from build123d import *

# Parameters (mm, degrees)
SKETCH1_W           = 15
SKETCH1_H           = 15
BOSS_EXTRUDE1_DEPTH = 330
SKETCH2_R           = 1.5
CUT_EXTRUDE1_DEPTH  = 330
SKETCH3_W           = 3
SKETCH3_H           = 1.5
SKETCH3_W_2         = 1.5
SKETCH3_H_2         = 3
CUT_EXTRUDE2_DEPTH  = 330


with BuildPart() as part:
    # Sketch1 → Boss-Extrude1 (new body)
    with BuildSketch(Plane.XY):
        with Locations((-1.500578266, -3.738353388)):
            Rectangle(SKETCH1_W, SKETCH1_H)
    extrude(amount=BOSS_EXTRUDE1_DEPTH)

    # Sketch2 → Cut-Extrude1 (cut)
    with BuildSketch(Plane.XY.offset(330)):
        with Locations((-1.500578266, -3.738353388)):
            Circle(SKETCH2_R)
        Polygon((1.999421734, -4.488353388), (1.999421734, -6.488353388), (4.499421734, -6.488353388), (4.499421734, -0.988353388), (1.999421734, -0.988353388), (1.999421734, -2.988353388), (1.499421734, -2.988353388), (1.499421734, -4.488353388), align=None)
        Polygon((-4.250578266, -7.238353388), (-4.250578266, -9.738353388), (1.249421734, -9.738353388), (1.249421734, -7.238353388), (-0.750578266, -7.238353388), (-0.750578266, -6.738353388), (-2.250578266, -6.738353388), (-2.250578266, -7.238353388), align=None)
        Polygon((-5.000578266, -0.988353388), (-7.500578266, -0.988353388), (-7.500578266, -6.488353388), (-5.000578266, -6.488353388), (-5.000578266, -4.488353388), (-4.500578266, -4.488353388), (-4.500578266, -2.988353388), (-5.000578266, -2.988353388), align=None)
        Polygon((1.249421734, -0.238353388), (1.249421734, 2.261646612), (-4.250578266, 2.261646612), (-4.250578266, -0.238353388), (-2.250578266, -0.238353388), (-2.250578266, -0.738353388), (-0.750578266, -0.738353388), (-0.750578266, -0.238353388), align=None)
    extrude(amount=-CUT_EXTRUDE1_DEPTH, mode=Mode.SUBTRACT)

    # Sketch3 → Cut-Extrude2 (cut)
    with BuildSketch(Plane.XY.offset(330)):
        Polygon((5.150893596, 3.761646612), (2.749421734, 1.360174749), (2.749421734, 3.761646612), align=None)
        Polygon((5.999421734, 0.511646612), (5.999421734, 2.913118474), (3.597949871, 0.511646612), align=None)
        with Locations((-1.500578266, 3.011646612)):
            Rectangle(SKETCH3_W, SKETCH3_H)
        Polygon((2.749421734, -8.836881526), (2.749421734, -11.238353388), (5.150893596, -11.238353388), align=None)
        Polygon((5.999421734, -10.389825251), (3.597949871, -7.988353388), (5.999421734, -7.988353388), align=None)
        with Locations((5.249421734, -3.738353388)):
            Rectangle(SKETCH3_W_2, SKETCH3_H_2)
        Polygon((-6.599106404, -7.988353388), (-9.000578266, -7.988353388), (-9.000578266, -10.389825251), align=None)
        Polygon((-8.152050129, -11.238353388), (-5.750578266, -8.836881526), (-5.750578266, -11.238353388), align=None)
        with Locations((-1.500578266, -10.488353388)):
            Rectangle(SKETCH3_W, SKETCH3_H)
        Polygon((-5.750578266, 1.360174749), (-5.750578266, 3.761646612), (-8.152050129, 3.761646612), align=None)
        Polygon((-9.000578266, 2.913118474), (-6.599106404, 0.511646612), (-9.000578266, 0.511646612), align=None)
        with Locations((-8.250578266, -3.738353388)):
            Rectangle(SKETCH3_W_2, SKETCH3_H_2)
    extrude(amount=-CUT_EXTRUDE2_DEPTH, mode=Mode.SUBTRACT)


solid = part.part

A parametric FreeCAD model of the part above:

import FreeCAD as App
import Part
import Sketcher
from FreeCAD import Vector
Q = App.Units.Quantity

doc = App.newDocument("Part")
body = doc.addObject("PartDesign::Body", "Body")

# Sketch on XY plane
sketch1 = body.newObject("Sketcher::SketchObject", "Sketch")
sketch1.AttachmentSupport = (doc.getObject("XY_Plane"), [""])
sketch1.MapMode = "FlatFace"
sketch1.addGeometry([
    Part.LineSegment(Vector(-9, 4, 0), Vector(-9, -11, 0)),
    Part.LineSegment(Vector(-9, -11, 0), Vector(6, -11, 0)),
    Part.LineSegment(Vector(6, -11, 0), Vector(6, 4, 0)),
    Part.LineSegment(Vector(6, 4, 0), Vector(-9, 4, 0)),
], False)
sketch1.addConstraint([
    Sketcher.Constraint("Coincident", 0, 2, 1, 1),
    Sketcher.Constraint("Coincident", 1, 2, 2, 1),
    Sketcher.Constraint("Coincident", 2, 2, 3, 1),
    Sketcher.Constraint("Coincident", 3, 2, 0, 1),
    Sketcher.Constraint("Vertical", 0),
    Sketcher.Constraint("Horizontal", 1),
    Sketcher.Constraint("Vertical", 2),
    Sketcher.Constraint("Horizontal", 3),
    Sketcher.Constraint("Equal", 3, 0),
    Sketcher.Constraint("DistanceX", 1, 1, 1, 2, Q("15 mm")),
    Sketcher.Constraint("DistanceX", 0, 2, -1, 1, Q("9.000578 mm")),
    Sketcher.Constraint("DistanceY", 0, 2, -1, 1, Q("11.238353 mm")),
])
pad1 = body.newObject("PartDesign::Pad", "Pad")
pad1.Profile = sketch1
pad1.Length = 330

# Sketch on XY plane
sketch2 = body.newObject("Sketcher::SketchObject", "Sketch001")
sketch2.AttachmentSupport = (doc.getObject("XY_Plane"), [""])
sketch2.MapMode = "FlatFace"
sketch2.AttachmentOffset = App.Placement(Vector(0, 0, 330), App.Rotation())
sketch2.addGeometry([
    Part.Circle(Vector(-1.5, -3.7, 0), Vector(0, 0, 1), 1.5),  # 0
    Part.LineSegment(Vector(2, -4.5, 0), Vector(2, -6.5, 0)),  # 1
    Part.LineSegment(Vector(2, -6.5, 0), Vector(4.5, -6.5, 0)),  # 2
    Part.LineSegment(Vector(4.5, -6.5, 0), Vector(4.5, -1, 0)),  # 3
    Part.LineSegment(Vector(4.5, -1, 0), Vector(2, -1, 0)),  # 4
    Part.LineSegment(Vector(2, -1, 0), Vector(2, -3, 0)),  # 5
    Part.LineSegment(Vector(2, -3, 0), Vector(1.5, -3, 0)),  # 6
    Part.LineSegment(Vector(1.5, -3, 0), Vector(1.5, -4.5, 0)),  # 7
    Part.LineSegment(Vector(1.5, -4.5, 0), Vector(2, -4.5, 0)),  # 8
    Part.LineSegment(Vector(-4.3, -7.2, 0), Vector(-4.3, -9.7, 0)),  # 9
    Part.LineSegment(Vector(-4.3, -9.7, 0), Vector(1.2, -9.7, 0)),  # 10
    Part.LineSegment(Vector(1.2, -9.7, 0), Vector(1.2, -7.2, 0)),  # 11
    Part.LineSegment(Vector(1.2, -7.2, 0), Vector(-0.8, -7.2, 0)),  # 12
    Part.LineSegment(Vector(-0.8, -7.2, 0), Vector(-0.8, -6.7, 0)),  # 13
    Part.LineSegment(Vector(-0.8, -6.7, 0), Vector(-2.3, -6.7, 0)),  # 14
    Part.LineSegment(Vector(-2.3, -6.7, 0), Vector(-2.3, -7.2, 0)),  # 15
    Part.LineSegment(Vector(-2.3, -7.2, 0), Vector(-4.3, -7.2, 0)),  # 16
    Part.LineSegment(Vector(-5, -1, 0), Vector(-7.5, -1, 0)),  # 17
    Part.LineSegment(Vector(-7.5, -1, 0), Vector(-7.5, -6.5, 0)),  # 18
    Part.LineSegment(Vector(-7.5, -6.5, 0), Vector(-5, -6.5, 0)),  # 19
    Part.LineSegment(Vector(-5, -6.5, 0), Vector(-5, -4.5, 0)),  # 20
    Part.LineSegment(Vector(-5, -4.5, 0), Vector(-4.5, -4.5, 0)),  # 21
    Part.LineSegment(Vector(-4.5, -4.5, 0), Vector(-4.5, -3, 0)),  # 22
    Part.LineSegment(Vector(-4.5, -3, 0), Vector(-5, -3, 0)),  # 23
    Part.LineSegment(Vector(-5, -3, 0), Vector(-5, -1, 0)),  # 24
    Part.LineSegment(Vector(1.2, -0.2, 0), Vector(1.2, 2.3, 0)),  # 25
    Part.LineSegment(Vector(1.2, 2.3, 0), Vector(-4.3, 2.3, 0)),  # 26
    Part.LineSegment(Vector(-4.3, 2.3, 0), Vector(-4.3, -0.2, 0)),  # 27
    Part.LineSegment(Vector(-4.3, -0.2, 0), Vector(-2.3, -0.2, 0)),  # 28
    Part.LineSegment(Vector(-2.3, -0.2, 0), Vector(-2.3, -0.7, 0)),  # 29
    Part.LineSegment(Vector(-2.3, -0.7, 0), Vector(-0.8, -0.7, 0)),  # 30
    Part.LineSegment(Vector(-0.8, -0.7, 0), Vector(-0.8, -0.2, 0)),  # 31
    Part.LineSegment(Vector(-0.8, -0.2, 0), Vector(1.2, -0.2, 0)),  # 32
], False)
sketch2.addConstraint([
    Sketcher.Constraint("Coincident", 1, 2, 2, 1),
    Sketcher.Constraint("Coincident", 2, 2, 3, 1),
    Sketcher.Constraint("Coincident", 3, 2, 4, 1),
    Sketcher.Constraint("Coincident", 4, 2, 5, 1),
    Sketcher.Constraint("Coincident", 5, 2, 6, 1),
    Sketcher.Constraint("Coincident", 6, 2, 7, 1),
    Sketcher.Constraint("Coincident", 7, 2, 8, 1),
    Sketcher.Constraint("Coincident", 8, 2, 1, 1),
    Sketcher.Constraint("Coincident", 9, 2, 10, 1),
    Sketcher.Constraint("Coincident", 10, 2, 11, 1),
    Sketcher.Constraint("Coincident", 11, 2, 12, 1),
    Sketcher.Constraint("Coincident", 12, 2, 13, 1),
    Sketcher.Constraint("Coincident", 13, 2, 14, 1),
    Sketcher.Constraint("Coincident", 14, 2, 15, 1),
    Sketcher.Constraint("Coincident", 15, 2, 16, 1),
    Sketcher.Constraint("Coincident", 16, 2, 9, 1),
    Sketcher.Constraint("Coincident", 17, 2, 18, 1),
    Sketcher.Constraint("Coincident", 18, 2, 19, 1),
    Sketcher.Constraint("Coincident", 19, 2, 20, 1),
    Sketcher.Constraint("Coincident", 20, 2, 21, 1),
    Sketcher.Constraint("Coincident", 21, 2, 22, 1),
    Sketcher.Constraint("Coincident", 22, 2, 23, 1),
    Sketcher.Constraint("Coincident", 23, 2, 24, 1),
    Sketcher.Constraint("Coincident", 24, 2, 17, 1),
    Sketcher.Constraint("Coincident", 25, 2, 26, 1),
    Sketcher.Constraint("Coincident", 26, 2, 27, 1),
    Sketcher.Constraint("Coincident", 27, 2, 28, 1),
    Sketcher.Constraint("Coincident", 28, 2, 29, 1),
    Sketcher.Constraint("Coincident", 29, 2, 30, 1),
    Sketcher.Constraint("Coincident", 30, 2, 31, 1),
    Sketcher.Constraint("Coincident", 31, 2, 32, 1),
    Sketcher.Constraint("Coincident", 32, 2, 25, 1),
    Sketcher.Constraint("Vertical", 1),
    Sketcher.Constraint("Horizontal", 2),
    Sketcher.Constraint("Vertical", 3),
    Sketcher.Constraint("Horizontal", 4),
    Sketcher.Constraint("Vertical", 5),
    Sketcher.Constraint("Horizontal", 6),
    Sketcher.Constraint("Vertical", 7),
    Sketcher.Constraint("Horizontal", 8),
    Sketcher.Constraint("Vertical", 9),
    Sketcher.Constraint("Horizontal", 10),
    Sketcher.Constraint("Vertical", 11),
    Sketcher.Constraint("Horizontal", 12),
    Sketcher.Constraint("Vertical", 13),
    Sketcher.Constraint("Horizontal", 14),
    Sketcher.Constraint("Vertical", 15),
    Sketcher.Constraint("Horizontal", 16),
    Sketcher.Constraint("Horizontal", 17),
    Sketcher.Constraint("Vertical", 18),
    Sketcher.Constraint("Horizontal", 19),
    Sketcher.Constraint("Vertical", 20),
    Sketcher.Constraint("Horizontal", 21),
    Sketcher.Constraint("Vertical", 22),
    Sketcher.Constraint("Horizontal", 23),
    Sketcher.Constraint("Vertical", 24),
    Sketcher.Constraint("Vertical", 25),
    Sketcher.Constraint("Horizontal", 26),
    Sketcher.Constraint("Vertical", 27),
    Sketcher.Constraint("Horizontal", 28),
    Sketcher.Constraint("Vertical", 29),
    Sketcher.Constraint("Horizontal", 30),
    Sketcher.Constraint("Vertical", 31),
    Sketcher.Constraint("Horizontal", 32),
    Sketcher.Constraint("Horizontal", 12, 2, 15, 2),
    Sketcher.Constraint("Horizontal", 4, 2, 17, 2),
    Sketcher.Constraint("Horizontal", 2, 2, 18, 2),
    Sketcher.Constraint("Horizontal", 8, 2, 20, 2),
    Sketcher.Constraint("Horizontal", 6, 2, 22, 2),
    Sketcher.Constraint("Horizontal", 28, 2, 31, 2),
    Sketcher.Constraint("Vertical", 1, 2, 4, 2),
    Sketcher.Constraint("Vertical", 20, 2, 23, 2),
    Sketcher.Constraint("Vertical", 11, 2, 25, 2),
    Sketcher.Constraint("Vertical", 16, 2, 26, 2),
    Sketcher.Constraint("Vertical", 15, 2, 28, 2),
    Sketcher.Constraint("Vertical", 13, 2, 30, 2),
    Sketcher.Constraint("Equal", 12, 16),
    Sketcher.Constraint("Equal", 4, 17),
    Sketcher.Constraint("Equal", 8, 21),
    Sketcher.Constraint("Equal", 32, 1),
    Sketcher.Constraint("Equal", 26, 3),
    Sketcher.Constraint("Equal", 1, 5),
    Sketcher.Constraint("Equal", 19, 9),
    Sketcher.Constraint("Equal", 23, 13),
    Sketcher.Constraint("Equal", 11, 25),
    Sketcher.Constraint("Equal", 15, 29),
    Sketcher.Constraint("Diameter", 0, Q("3 mm")),
    Sketcher.Constraint("DistanceX", 12, 2, 12, 1, Q("2 mm")),
    Sketcher.Constraint("DistanceX", 2, 1, 2, 2, Q("2.5 mm")),
    Sketcher.Constraint("DistanceX", 6, 2, 6, 1, Q("0.5 mm")),
    Sketcher.Constraint("DistanceX", 10, 1, 10, 2, Q("5.5 mm")),
    Sketcher.Constraint("DistanceX", 0, 3, 2, 2, Q("6 mm")),
    Sketcher.Constraint("DistanceY", 9, 2, 0, 3, Q("6 mm")),
    Sketcher.Constraint("DistanceX", 17, 2, 0, 3, Q("6 mm")),
    Sketcher.Constraint("DistanceY", 0, 3, 25, 2, Q("6 mm")),
    Sketcher.Constraint("DistanceY", 1, 2, 0, 3, Q("2.75 mm")),
    Sketcher.Constraint("DistanceX", 9, 2, 0, 3, Q("2.75 mm")),
    Sketcher.Constraint("DistanceX", 0, 3, -1, 1, Q("1.500578 mm")),
    Sketcher.Constraint("DistanceY", 0, 3, -1, 1, Q("3.738353 mm")),
])
pocket1 = body.newObject("PartDesign::Pocket", "Pocket")
pocket1.Profile = sketch2
pocket1.Length = 330

# Sketch on XY plane
sketch3 = body.newObject("Sketcher::SketchObject", "Sketch002")
sketch3.AttachmentSupport = (doc.getObject("XY_Plane"), [""])
sketch3.MapMode = "FlatFace"
sketch3.AttachmentOffset = App.Placement(Vector(0, 0, 330), App.Rotation())
sketch3.addGeometry([
    Part.LineSegment(Vector(2.7, 1.4, 0), Vector(5.2, 3.8, 0)),  # 0
    Part.LineSegment(Vector(5.2, 3.8, 0), Vector(2.7, 3.8, 0)),  # 1
    Part.LineSegment(Vector(2.7, 3.8, 0), Vector(2.7, 1.4, 0)),  # 2
    Part.LineSegment(Vector(6, 0.5, 0), Vector(6, 2.9, 0)),  # 3
    Part.LineSegment(Vector(6, 2.9, 0), Vector(3.6, 0.5, 0)),  # 4
    Part.LineSegment(Vector(3.6, 0.5, 0), Vector(6, 0.5, 0)),  # 5
    Part.LineSegment(Vector(-3, 3.8, 0), Vector(-3, 2.3, 0)),  # 6
    Part.LineSegment(Vector(-3, 2.3, 0), Vector(0, 2.3, 0)),  # 7
    Part.LineSegment(Vector(0, 2.3, 0), Vector(0, 3.8, 0)),  # 8
    Part.LineSegment(Vector(0, 3.8, 0), Vector(-3, 3.8, 0)),  # 9
    Part.LineSegment(Vector(2.7, -8.8, 0), Vector(2.7, -11.2, 0)),  # 10
    Part.LineSegment(Vector(2.7, -11.2, 0), Vector(5.2, -11.2, 0)),  # 11
    Part.LineSegment(Vector(5.2, -11.2, 0), Vector(2.7, -8.8, 0)),  # 12
    Part.LineSegment(Vector(3.6, -8, 0), Vector(6, -10.4, 0)),  # 13
    Part.LineSegment(Vector(6, -10.4, 0), Vector(6, -8, 0)),  # 14
    Part.LineSegment(Vector(6, -8, 0), Vector(3.6, -8, 0)),  # 15
    Part.LineSegment(Vector(4.5, -2.2, 0), Vector(4.5, -5.2, 0)),  # 16
    Part.LineSegment(Vector(4.5, -5.2, 0), Vector(6, -5.2, 0)),  # 17
    Part.LineSegment(Vector(6, -5.2, 0), Vector(6, -2.2, 0)),  # 18
    Part.LineSegment(Vector(6, -2.2, 0), Vector(4.5, -2.2, 0)),  # 19
    Part.LineSegment(Vector(-6.6, -8, 0), Vector(-9, -8, 0)),  # 20
    Part.LineSegment(Vector(-9, -8, 0), Vector(-9, -10.4, 0)),  # 21
    Part.LineSegment(Vector(-9, -10.4, 0), Vector(-6.6, -8, 0)),  # 22
    Part.LineSegment(Vector(-5.8, -8.8, 0), Vector(-8.2, -11.2, 0)),  # 23
    Part.LineSegment(Vector(-8.2, -11.2, 0), Vector(-5.8, -11.2, 0)),  # 24
    Part.LineSegment(Vector(-5.8, -11.2, 0), Vector(-5.8, -8.8, 0)),  # 25
    Part.LineSegment(Vector(-3, -9.7, 0), Vector(-3, -11.2, 0)),  # 26
    Part.LineSegment(Vector(-3, -11.2, 0), Vector(0, -11.2, 0)),  # 27
    Part.LineSegment(Vector(0, -11.2, 0), Vector(0, -9.7, 0)),  # 28
    Part.LineSegment(Vector(0, -9.7, 0), Vector(-3, -9.7, 0)),  # 29
    Part.LineSegment(Vector(-5.8, 1.4, 0), Vector(-5.8, 3.8, 0)),  # 30
    Part.LineSegment(Vector(-5.8, 3.8, 0), Vector(-8.2, 3.8, 0)),  # 31
    Part.LineSegment(Vector(-8.2, 3.8, 0), Vector(-5.8, 1.4, 0)),  # 32
    Part.LineSegment(Vector(-6.6, 0.5, 0), Vector(-9, 2.9, 0)),  # 33
    Part.LineSegment(Vector(-9, 2.9, 0), Vector(-9, 0.5, 0)),  # 34
    Part.LineSegment(Vector(-9, 0.5, 0), Vector(-6.6, 0.5, 0)),  # 35
    Part.LineSegment(Vector(-9, -2.2, 0), Vector(-9, -5.2, 0)),  # 36
    Part.LineSegment(Vector(-9, -5.2, 0), Vector(-7.5, -5.2, 0)),  # 37
    Part.LineSegment(Vector(-7.5, -5.2, 0), Vector(-7.5, -2.2, 0)),  # 38
    Part.LineSegment(Vector(-7.5, -2.2, 0), Vector(-9, -2.2, 0)),  # 39
], False)
sketch3.addConstraint([
    Sketcher.Constraint("Coincident", 0, 2, 1, 1),
    Sketcher.Constraint("Coincident", 1, 2, 2, 1),
    Sketcher.Constraint("Coincident", 2, 2, 0, 1),
    Sketcher.Constraint("Coincident", 3, 2, 4, 1),
    Sketcher.Constraint("Coincident", 4, 2, 5, 1),
    Sketcher.Constraint("Coincident", 5, 2, 3, 1),
    Sketcher.Constraint("Coincident", 6, 2, 7, 1),
    Sketcher.Constraint("Coincident", 7, 2, 8, 1),
    Sketcher.Constraint("Coincident", 8, 2, 9, 1),
    Sketcher.Constraint("Coincident", 9, 2, 6, 1),
    Sketcher.Constraint("Coincident", 10, 2, 11, 1),
    Sketcher.Constraint("Coincident", 11, 2, 12, 1),
    Sketcher.Constraint("Coincident", 12, 2, 10, 1),
    Sketcher.Constraint("Coincident", 13, 2, 14, 1),
    Sketcher.Constraint("Coincident", 14, 2, 15, 1),
    Sketcher.Constraint("Coincident", 15, 2, 13, 1),
    Sketcher.Constraint("Coincident", 16, 2, 17, 1),
    Sketcher.Constraint("Coincident", 17, 2, 18, 1),
    Sketcher.Constraint("Coincident", 18, 2, 19, 1),
    Sketcher.Constraint("Coincident", 19, 2, 16, 1),
    Sketcher.Constraint("Coincident", 20, 2, 21, 1),
    Sketcher.Constraint("Coincident", 21, 2, 22, 1),
    Sketcher.Constraint("Coincident", 22, 2, 20, 1),
    Sketcher.Constraint("Coincident", 23, 2, 24, 1),
    Sketcher.Constraint("Coincident", 24, 2, 25, 1),
    Sketcher.Constraint("Coincident", 25, 2, 23, 1),
    Sketcher.Constraint("Coincident", 26, 2, 27, 1),
    Sketcher.Constraint("Coincident", 27, 2, 28, 1),
    Sketcher.Constraint("Coincident", 28, 2, 29, 1),
    Sketcher.Constraint("Coincident", 29, 2, 26, 1),
    Sketcher.Constraint("Coincident", 30, 2, 31, 1),
    Sketcher.Constraint("Coincident", 31, 2, 32, 1),
    Sketcher.Constraint("Coincident", 32, 2, 30, 1),
    Sketcher.Constraint("Coincident", 33, 2, 34, 1),
    Sketcher.Constraint("Coincident", 34, 2, 35, 1),
    Sketcher.Constraint("Coincident", 35, 2, 33, 1),
    Sketcher.Constraint("Coincident", 36, 2, 37, 1),
    Sketcher.Constraint("Coincident", 37, 2, 38, 1),
    Sketcher.Constraint("Coincident", 38, 2, 39, 1),
    Sketcher.Constraint("Coincident", 39, 2, 36, 1),
    Sketcher.Constraint("Horizontal", 1),
    Sketcher.Constraint("Vertical", 2),
    Sketcher.Constraint("Vertical", 3),
    Sketcher.Constraint("Horizontal", 5),
    Sketcher.Constraint("Vertical", 6),
    Sketcher.Constraint("Horizontal", 7),
    Sketcher.Constraint("Vertical", 8),
    Sketcher.Constraint("Horizontal", 9),
    Sketcher.Constraint("Vertical", 10),
    Sketcher.Constraint("Horizontal", 11),
    Sketcher.Constraint("Vertical", 14),
    Sketcher.Constraint("Horizontal", 15),
    Sketcher.Constraint("Vertical", 16),
    Sketcher.Constraint("Horizontal", 17),
    Sketcher.Constraint("Vertical", 18),
    Sketcher.Constraint("Horizontal", 19),
    Sketcher.Constraint("Horizontal", 20),
    Sketcher.Constraint("Vertical", 21),
    Sketcher.Constraint("Horizontal", 24),
    Sketcher.Constraint("Vertical", 25),
    Sketcher.Constraint("Vertical", 26),
    Sketcher.Constraint("Horizontal", 27),
    Sketcher.Constraint("Vertical", 28),
    Sketcher.Constraint("Horizontal", 29),
    Sketcher.Constraint("Vertical", 30),
    Sketcher.Constraint("Horizontal", 31),
    Sketcher.Constraint("Vertical", 34),
    Sketcher.Constraint("Horizontal", 35),
    Sketcher.Constraint("Vertical", 36),
    Sketcher.Constraint("Horizontal", 37),
    Sketcher.Constraint("Vertical", 38),
    Sketcher.Constraint("Horizontal", 39),
    Sketcher.Constraint("Parallel", 0, 4),
    Sketcher.Constraint("Perpendicular", 4, 12),
    Sketcher.Constraint("Parallel", 12, 13),
    Sketcher.Constraint("Perpendicular", 13, 22),
    Sketcher.Constraint("Parallel", 22, 23),
    Sketcher.Constraint("Perpendicular", 23, 32),
    Sketcher.Constraint("Parallel", 32, 33),
    Sketcher.Constraint("Horizontal", 1, 2, 8, 2),
    Sketcher.Constraint("Horizontal", 15, 2, 20, 2),
    Sketcher.Constraint("Horizontal", 13, 2, 21, 2),
    Sketcher.Constraint("Horizontal", 11, 2, 23, 2),
    Sketcher.Constraint("Horizontal", 12, 2, 25, 2),
    Sketcher.Constraint("Horizontal", 24, 2, 26, 2),
    Sketcher.Constraint("Horizontal", 9, 2, 30, 2),
    Sketcher.Constraint("Horizontal", 2, 2, 32, 2),
    Sketcher.Constraint("Horizontal", 3, 2, 33, 2),
    Sketcher.Constraint("Horizontal", 5, 2, 34, 2),
    Sketcher.Constraint("Horizontal", 17, 2, 36, 2),
    Sketcher.Constraint("Horizontal", 19, 2, 38, 2),
    Sketcher.Constraint("Vertical", 2, 2, 10, 2),
    Sketcher.Constraint("Vertical", 0, 2, 11, 2),
    Sketcher.Constraint("Vertical", 5, 2, 13, 2),
    Sketcher.Constraint("Vertical", 4, 2, 15, 2),
    Sketcher.Constraint("Vertical", 14, 2, 17, 2),
    Sketcher.Constraint("Vertical", 9, 2, 26, 2),
    Sketcher.Constraint("Vertical", 8, 2, 27, 2),
    Sketcher.Constraint("Vertical", 25, 2, 30, 2),
    Sketcher.Constraint("Vertical", 23, 2, 31, 2),
    Sketcher.Constraint("Vertical", 21, 2, 33, 2),
    Sketcher.Constraint("Vertical", 34, 2, 36, 2),
    Sketcher.Constraint("Equal", 1, 5),
    Sketcher.Constraint("Equal", 19, 37),
    Sketcher.Constraint("Equal", 39, 6),
    Sketcher.Constraint("Equal", 29, 16),
    Sketcher.Constraint("Equal", 8, 26),
    Sketcher.Constraint("DistanceX", 7, 1, 7, 2, Q("3 mm")),
    Sketcher.Constraint("DistanceX", 17, 1, 17, 2, Q("1.5 mm")),
    Sketcher.Constraint("DistanceX", 6, 2, 3, 2, Q("9 mm")),
    Sketcher.Constraint("DistanceX", 20, 2, 6, 2, Q("6 mm")),
    Sketcher.Constraint("DistanceY", 10, 2, 7, 2, Q("13.5 mm")),
    Sketcher.Constraint("DistanceY", 14, 2, 5, 2, Q("8.5 mm")),
    Sketcher.Constraint("DistanceX", 24, 2, 10, 2, Q("8.5 mm")),
    Sketcher.Constraint("DistanceX", 1, 2, 3, 2, Q("3.25 mm")),
    Sketcher.Constraint("DistanceY", 4, 2, 1, 2, Q("3.25 mm")),
    Sketcher.Constraint("DistanceY", 15, 2, 16, 2, Q("2.75 mm")),
    Sketcher.Constraint("DistanceX", 1, 2, 1, 1, Q("2.401472 mm")),
    Sketcher.Constraint("DistanceX", -1, 1, 1, 2, Q("2.749422 mm")),
    Sketcher.Constraint("DistanceY", -1, 1, 3, 2, Q("2.913118 mm")),
])
pocket2 = body.newObject("PartDesign::Pocket", "Pocket001")
pocket2.Profile = sketch3
pocket2.Length = 330

doc.recompute()
